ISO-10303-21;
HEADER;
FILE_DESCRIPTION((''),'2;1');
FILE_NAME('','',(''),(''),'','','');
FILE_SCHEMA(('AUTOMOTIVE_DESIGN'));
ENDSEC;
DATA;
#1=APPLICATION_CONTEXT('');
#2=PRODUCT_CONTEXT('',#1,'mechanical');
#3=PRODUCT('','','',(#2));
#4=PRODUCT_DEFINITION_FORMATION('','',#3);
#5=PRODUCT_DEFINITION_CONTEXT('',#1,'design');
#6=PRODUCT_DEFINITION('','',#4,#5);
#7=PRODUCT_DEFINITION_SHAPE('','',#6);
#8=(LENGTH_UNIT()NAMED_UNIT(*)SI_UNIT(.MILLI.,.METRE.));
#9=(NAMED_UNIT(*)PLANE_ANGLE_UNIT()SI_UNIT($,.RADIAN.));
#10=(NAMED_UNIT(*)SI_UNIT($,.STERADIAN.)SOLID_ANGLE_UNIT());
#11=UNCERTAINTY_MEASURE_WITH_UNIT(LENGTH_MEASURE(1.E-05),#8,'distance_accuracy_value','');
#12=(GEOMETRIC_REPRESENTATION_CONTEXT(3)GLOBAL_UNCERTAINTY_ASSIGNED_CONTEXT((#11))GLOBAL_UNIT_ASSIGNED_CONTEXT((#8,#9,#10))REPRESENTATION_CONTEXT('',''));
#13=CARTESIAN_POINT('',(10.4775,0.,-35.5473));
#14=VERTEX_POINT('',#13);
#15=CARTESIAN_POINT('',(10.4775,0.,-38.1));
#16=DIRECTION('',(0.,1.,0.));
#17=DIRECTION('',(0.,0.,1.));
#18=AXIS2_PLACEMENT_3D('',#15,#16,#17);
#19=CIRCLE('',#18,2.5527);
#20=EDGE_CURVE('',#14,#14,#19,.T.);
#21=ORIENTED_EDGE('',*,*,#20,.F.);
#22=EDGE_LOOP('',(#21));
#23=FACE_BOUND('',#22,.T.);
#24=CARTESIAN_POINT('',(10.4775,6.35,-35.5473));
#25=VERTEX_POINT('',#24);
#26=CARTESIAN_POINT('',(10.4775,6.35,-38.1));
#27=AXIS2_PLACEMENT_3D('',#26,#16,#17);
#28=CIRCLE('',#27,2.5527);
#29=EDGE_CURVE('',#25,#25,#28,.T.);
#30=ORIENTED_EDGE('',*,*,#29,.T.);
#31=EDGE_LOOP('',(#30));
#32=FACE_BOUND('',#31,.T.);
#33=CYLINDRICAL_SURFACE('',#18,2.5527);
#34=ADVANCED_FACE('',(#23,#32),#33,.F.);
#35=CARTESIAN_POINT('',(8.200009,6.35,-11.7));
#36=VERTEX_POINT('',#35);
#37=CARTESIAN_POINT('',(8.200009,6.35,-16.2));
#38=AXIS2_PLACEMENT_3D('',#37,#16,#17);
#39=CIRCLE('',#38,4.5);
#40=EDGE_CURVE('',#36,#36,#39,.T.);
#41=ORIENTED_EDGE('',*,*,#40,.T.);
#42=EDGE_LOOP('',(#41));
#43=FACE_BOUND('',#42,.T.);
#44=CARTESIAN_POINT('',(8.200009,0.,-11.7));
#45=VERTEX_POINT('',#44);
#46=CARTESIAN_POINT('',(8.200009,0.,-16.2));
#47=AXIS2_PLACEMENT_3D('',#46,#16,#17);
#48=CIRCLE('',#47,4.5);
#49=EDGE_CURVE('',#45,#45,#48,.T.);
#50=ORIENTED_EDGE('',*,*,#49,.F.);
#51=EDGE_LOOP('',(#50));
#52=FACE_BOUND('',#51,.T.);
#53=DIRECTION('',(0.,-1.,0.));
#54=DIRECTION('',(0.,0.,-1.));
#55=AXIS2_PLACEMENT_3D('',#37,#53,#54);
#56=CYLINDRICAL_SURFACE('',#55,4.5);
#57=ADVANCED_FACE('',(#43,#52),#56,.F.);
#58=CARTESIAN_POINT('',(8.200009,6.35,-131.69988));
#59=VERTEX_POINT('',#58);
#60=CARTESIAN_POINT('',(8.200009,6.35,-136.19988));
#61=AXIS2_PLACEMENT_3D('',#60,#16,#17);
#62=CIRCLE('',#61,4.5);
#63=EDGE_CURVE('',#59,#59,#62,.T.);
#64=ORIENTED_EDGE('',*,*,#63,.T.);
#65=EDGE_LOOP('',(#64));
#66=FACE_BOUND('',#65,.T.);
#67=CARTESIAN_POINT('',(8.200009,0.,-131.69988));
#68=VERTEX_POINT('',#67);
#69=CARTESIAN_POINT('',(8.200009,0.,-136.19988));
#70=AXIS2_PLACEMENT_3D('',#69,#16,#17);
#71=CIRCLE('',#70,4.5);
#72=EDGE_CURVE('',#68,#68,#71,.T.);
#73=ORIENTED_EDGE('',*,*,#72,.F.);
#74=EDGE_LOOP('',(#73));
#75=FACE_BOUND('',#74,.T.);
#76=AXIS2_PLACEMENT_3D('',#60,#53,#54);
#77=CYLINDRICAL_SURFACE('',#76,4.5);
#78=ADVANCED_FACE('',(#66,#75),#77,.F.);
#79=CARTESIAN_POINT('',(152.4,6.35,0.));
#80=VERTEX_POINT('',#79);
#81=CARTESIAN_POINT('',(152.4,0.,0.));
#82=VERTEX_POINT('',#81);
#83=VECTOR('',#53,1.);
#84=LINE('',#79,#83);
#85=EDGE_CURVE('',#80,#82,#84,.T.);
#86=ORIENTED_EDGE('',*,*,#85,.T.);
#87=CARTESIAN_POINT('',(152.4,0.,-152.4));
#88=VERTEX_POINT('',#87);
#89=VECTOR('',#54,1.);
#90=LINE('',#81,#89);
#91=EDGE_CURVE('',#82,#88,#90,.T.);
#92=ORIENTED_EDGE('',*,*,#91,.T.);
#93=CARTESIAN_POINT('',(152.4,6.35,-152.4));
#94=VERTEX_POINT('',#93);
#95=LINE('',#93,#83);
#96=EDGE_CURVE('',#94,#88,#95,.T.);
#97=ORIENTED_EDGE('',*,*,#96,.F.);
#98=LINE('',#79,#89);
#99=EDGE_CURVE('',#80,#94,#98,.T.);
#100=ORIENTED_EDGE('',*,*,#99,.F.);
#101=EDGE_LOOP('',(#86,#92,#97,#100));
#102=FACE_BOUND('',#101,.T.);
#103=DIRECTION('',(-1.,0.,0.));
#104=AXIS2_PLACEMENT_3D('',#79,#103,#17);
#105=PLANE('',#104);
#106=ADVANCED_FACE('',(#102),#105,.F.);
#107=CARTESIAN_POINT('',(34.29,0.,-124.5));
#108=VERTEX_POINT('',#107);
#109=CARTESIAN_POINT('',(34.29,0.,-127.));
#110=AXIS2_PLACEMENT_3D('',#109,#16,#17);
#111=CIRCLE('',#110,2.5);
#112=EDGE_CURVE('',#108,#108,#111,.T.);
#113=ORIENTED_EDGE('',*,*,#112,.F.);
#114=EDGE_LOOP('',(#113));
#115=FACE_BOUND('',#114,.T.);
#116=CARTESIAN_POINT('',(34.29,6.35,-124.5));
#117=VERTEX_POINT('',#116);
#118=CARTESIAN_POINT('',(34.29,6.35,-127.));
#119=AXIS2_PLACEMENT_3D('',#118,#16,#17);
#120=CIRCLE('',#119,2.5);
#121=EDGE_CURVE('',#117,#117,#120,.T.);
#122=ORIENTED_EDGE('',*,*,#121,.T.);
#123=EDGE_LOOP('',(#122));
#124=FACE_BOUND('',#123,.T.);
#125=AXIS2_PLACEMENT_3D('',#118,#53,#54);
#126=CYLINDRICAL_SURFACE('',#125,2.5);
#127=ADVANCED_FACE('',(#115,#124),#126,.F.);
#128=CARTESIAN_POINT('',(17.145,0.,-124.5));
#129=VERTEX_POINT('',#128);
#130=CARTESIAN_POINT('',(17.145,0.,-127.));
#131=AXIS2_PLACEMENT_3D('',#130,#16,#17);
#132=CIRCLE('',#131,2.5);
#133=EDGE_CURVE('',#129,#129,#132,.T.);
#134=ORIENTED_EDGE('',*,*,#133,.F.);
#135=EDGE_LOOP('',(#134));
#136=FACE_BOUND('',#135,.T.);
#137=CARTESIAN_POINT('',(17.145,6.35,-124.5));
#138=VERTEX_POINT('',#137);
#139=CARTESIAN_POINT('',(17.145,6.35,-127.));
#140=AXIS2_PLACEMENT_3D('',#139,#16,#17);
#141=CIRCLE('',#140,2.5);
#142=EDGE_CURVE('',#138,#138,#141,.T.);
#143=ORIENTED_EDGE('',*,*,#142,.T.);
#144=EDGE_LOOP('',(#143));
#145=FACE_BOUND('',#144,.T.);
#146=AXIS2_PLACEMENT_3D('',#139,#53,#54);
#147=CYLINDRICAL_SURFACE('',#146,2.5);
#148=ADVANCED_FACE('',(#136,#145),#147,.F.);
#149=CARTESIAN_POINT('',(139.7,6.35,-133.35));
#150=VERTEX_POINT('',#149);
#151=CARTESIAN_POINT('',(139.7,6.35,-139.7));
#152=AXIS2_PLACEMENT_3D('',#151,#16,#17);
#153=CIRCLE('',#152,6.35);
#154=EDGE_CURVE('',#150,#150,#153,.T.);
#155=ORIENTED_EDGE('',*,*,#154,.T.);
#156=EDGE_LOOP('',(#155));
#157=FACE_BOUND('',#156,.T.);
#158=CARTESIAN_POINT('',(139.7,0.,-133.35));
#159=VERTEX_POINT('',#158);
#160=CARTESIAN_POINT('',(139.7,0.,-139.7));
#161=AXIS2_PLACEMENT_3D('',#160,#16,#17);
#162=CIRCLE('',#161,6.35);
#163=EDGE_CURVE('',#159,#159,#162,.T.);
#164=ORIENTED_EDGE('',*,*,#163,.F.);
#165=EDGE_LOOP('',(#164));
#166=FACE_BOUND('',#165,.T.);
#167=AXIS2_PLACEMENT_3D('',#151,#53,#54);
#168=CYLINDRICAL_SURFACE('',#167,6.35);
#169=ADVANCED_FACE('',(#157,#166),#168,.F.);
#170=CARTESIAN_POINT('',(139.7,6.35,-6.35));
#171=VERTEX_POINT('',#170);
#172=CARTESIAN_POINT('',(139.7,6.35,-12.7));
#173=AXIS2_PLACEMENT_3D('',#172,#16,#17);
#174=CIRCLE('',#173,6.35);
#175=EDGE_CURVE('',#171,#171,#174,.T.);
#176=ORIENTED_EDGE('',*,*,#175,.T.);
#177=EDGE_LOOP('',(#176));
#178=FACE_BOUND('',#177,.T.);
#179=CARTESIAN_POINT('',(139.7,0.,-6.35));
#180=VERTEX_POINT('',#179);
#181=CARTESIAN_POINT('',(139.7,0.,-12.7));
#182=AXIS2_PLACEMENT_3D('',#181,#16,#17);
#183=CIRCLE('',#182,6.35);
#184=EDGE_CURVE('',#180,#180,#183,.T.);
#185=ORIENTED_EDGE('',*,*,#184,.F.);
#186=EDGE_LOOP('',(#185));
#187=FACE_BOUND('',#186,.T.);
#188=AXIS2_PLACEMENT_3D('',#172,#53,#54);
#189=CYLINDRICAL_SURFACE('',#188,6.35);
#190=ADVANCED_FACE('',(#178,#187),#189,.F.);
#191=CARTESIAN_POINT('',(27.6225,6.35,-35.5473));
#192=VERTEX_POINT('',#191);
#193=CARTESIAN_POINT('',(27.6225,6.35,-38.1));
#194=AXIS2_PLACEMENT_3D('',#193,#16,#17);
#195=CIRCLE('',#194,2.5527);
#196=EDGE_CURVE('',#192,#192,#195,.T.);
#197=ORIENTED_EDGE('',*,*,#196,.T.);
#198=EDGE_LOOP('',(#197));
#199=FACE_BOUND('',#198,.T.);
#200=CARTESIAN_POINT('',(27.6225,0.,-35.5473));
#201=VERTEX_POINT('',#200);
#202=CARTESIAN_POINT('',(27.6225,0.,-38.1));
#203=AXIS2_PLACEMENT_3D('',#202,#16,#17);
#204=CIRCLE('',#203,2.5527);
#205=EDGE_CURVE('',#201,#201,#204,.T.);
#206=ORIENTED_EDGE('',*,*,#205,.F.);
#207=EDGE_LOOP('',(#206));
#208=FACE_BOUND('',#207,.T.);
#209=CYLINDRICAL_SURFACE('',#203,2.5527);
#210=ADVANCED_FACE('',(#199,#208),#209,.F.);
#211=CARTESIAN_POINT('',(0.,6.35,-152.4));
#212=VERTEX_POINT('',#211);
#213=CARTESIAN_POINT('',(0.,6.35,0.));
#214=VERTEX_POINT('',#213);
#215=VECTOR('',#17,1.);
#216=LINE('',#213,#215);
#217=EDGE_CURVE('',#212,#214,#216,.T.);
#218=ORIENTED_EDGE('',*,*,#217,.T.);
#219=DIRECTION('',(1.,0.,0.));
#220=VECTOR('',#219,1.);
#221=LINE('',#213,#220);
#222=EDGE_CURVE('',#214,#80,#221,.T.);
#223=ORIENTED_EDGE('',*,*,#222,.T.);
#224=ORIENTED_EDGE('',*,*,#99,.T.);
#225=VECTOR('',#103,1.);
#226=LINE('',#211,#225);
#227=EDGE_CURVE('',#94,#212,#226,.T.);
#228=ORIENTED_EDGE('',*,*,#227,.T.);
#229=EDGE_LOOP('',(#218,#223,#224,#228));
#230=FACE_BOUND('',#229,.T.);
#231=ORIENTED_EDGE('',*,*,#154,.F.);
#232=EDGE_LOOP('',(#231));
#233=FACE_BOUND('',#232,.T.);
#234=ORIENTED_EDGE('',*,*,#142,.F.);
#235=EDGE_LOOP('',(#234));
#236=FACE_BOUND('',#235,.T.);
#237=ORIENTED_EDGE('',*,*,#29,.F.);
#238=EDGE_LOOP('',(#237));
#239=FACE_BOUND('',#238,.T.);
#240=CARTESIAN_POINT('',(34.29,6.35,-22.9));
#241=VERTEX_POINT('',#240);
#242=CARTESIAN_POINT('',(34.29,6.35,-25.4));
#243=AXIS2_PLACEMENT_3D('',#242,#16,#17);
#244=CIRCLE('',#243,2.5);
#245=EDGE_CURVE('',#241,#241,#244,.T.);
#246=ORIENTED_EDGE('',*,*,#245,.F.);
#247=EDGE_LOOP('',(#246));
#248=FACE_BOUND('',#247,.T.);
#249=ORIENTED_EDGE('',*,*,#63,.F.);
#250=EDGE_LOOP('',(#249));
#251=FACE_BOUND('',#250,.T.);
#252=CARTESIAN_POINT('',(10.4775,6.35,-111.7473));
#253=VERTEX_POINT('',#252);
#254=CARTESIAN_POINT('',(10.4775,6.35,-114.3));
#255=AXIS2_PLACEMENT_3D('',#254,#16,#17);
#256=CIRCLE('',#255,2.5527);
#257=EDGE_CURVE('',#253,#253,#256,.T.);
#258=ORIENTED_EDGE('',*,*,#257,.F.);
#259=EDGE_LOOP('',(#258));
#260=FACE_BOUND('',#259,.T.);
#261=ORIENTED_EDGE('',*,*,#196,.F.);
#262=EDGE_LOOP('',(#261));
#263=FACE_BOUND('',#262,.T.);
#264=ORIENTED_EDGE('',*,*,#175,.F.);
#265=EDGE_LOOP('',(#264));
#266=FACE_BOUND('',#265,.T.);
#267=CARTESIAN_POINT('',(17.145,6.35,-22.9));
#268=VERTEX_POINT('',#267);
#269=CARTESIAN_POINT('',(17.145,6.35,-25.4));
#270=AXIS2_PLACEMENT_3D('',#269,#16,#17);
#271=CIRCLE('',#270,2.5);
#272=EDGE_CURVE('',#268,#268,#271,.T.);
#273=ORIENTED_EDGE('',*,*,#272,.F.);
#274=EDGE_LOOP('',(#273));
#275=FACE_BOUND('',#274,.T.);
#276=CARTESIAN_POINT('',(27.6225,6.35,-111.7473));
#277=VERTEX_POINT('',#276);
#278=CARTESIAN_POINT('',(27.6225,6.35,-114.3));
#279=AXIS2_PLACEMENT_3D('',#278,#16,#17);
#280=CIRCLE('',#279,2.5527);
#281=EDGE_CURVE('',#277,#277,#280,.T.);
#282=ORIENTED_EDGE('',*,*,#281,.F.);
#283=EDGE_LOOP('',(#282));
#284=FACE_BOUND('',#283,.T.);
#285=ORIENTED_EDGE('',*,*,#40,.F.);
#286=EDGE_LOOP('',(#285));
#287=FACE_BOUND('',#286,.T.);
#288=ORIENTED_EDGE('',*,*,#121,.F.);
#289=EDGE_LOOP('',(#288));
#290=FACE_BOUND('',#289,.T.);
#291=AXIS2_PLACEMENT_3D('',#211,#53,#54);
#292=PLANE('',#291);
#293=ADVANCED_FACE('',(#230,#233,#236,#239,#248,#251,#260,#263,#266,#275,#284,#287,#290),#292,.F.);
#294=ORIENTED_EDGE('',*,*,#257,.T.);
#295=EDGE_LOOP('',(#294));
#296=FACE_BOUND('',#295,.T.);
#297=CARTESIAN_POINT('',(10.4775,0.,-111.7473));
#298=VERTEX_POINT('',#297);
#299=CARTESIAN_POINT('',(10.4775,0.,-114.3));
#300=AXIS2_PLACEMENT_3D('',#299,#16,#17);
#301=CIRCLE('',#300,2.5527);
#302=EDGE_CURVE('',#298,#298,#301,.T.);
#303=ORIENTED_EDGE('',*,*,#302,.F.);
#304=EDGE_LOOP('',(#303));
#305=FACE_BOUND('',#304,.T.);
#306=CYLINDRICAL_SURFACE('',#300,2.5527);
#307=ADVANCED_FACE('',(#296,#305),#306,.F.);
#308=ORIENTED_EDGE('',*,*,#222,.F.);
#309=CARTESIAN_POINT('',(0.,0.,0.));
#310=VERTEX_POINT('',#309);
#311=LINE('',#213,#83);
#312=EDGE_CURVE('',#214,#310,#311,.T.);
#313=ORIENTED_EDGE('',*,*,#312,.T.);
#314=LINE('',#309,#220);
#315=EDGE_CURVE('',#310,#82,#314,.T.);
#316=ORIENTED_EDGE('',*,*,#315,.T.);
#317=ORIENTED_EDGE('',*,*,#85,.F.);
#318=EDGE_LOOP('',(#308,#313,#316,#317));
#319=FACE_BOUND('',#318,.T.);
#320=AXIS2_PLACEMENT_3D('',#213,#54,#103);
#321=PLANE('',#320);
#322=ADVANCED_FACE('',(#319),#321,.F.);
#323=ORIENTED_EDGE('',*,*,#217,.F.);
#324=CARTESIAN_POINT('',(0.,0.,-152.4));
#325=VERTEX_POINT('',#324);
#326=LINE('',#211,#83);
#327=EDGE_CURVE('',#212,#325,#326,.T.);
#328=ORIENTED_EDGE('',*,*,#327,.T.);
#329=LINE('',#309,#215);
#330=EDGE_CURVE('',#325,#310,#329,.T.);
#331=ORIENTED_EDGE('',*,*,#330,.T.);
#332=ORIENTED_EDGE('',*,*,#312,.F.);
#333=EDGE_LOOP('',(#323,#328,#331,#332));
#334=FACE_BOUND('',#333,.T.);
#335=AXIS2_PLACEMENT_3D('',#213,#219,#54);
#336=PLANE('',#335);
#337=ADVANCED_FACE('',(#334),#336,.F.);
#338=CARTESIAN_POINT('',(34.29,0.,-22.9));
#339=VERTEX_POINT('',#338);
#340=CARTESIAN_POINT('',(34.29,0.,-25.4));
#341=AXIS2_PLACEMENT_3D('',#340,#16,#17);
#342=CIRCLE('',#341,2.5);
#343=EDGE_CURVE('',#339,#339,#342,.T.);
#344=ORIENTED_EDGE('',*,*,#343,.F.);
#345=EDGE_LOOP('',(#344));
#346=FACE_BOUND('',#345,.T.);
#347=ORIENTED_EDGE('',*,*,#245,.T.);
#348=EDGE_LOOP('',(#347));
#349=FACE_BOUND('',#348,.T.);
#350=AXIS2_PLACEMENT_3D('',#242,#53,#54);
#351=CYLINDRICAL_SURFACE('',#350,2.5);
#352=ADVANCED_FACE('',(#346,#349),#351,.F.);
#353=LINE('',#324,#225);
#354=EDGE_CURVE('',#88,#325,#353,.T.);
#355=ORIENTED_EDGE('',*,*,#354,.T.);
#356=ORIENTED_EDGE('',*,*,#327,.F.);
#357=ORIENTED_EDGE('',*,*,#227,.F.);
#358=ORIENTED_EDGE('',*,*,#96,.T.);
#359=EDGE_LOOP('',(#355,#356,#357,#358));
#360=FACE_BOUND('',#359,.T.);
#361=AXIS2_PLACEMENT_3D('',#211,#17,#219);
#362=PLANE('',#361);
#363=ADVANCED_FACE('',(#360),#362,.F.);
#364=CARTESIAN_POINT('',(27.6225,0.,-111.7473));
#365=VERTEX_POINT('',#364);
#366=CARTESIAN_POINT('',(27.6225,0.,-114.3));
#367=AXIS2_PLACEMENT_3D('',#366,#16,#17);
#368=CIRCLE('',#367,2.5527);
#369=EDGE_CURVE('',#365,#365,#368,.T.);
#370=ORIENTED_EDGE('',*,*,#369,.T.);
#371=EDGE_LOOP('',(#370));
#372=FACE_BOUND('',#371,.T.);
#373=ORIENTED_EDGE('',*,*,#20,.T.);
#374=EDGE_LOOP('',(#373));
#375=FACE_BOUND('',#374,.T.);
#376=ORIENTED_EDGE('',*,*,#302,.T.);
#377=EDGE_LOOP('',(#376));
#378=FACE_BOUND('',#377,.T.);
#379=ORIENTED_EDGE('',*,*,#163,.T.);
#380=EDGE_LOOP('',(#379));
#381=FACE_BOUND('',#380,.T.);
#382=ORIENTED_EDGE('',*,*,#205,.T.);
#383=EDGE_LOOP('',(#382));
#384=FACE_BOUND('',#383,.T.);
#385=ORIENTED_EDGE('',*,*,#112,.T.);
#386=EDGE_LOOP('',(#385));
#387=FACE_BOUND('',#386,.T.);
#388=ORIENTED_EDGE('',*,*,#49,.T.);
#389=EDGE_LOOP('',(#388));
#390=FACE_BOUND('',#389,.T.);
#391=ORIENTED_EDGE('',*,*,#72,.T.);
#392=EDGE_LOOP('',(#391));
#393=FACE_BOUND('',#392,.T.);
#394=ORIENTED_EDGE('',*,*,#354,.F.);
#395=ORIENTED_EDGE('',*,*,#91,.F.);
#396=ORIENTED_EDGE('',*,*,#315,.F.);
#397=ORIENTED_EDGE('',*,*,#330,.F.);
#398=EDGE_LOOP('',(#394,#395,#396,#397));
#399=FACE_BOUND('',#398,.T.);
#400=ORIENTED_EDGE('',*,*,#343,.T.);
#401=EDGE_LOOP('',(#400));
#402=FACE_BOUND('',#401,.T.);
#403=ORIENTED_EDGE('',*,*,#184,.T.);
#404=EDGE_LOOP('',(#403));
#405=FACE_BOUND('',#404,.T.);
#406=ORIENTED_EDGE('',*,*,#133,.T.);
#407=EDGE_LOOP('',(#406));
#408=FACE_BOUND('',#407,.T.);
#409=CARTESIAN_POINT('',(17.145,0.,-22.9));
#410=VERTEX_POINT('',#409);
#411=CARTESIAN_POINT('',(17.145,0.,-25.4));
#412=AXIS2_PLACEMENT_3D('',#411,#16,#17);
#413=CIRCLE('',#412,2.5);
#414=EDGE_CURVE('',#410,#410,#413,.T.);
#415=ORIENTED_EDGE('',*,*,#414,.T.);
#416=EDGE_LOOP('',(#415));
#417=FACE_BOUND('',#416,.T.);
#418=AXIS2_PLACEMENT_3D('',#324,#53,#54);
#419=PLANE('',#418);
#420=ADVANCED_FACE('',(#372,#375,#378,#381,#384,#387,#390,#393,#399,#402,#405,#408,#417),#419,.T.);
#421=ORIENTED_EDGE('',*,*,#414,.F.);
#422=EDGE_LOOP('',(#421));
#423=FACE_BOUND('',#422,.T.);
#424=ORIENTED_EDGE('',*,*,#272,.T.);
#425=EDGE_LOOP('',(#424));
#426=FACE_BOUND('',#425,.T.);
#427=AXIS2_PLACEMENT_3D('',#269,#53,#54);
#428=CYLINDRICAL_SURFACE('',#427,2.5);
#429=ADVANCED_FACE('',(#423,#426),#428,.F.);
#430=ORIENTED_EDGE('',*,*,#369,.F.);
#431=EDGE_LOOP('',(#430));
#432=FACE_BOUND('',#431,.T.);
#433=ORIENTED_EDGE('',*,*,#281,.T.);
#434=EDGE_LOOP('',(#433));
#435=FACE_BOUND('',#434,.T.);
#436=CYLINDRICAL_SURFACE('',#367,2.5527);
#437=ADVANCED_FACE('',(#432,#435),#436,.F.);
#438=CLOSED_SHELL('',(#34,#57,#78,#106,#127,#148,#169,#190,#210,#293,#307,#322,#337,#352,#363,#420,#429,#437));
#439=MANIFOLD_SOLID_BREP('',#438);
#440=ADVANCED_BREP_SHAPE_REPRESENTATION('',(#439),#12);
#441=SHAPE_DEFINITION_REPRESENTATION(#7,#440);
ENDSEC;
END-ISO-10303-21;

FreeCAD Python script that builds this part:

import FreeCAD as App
import Part
import Sketcher
from FreeCAD import Vector
Q = App.Units.Quantity


def add_polygon(sketch, points):
    """Adds a closed chain of lines whose ends are joined by coincident constraints."""
    first, n = sketch.GeometryCount, len(points)
    for a, b in zip(points, points[1:] + points[:1]):
        sketch.addGeometry(Part.LineSegment(App.Vector(*a, 0), App.Vector(*b, 0)), False)
    for i in range(n):
        sketch.addConstraint(Sketcher.Constraint("Coincident", first + i, 2, first + (i + 1) % n, 1))

doc = App.newDocument("Part")
body = doc.addObject("PartDesign::Body", "Body")

# Sketch on XZ plane
sketch1 = body.newObject("Sketcher::SketchObject", "Sketch")
sketch1.AttachmentSupport = (doc.getObject("XZ_Plane"), [""])
sketch1.MapMode = "FlatFace"
add_polygon(sketch1, [(0, -152.4), (0, 0), (152.4, 0), (152.4, -152.4)])  # lines 0-3
sketch1.addGeometry(Part.Circle(Vector(8.2, -16.2, 0), Vector(0, 0, 1), 4.5), False)  # 4
sketch1.addGeometry(Part.Circle(Vector(17.1, -25.4, 0), Vector(0, 0, 1), 2.5), False)  # 5
sketch1.addGeometry(Part.Circle(Vector(34.3, -25.4, 0), Vector(0, 0, 1), 2.5), False)  # 6
sketch1.addGeometry(Part.Circle(Vector(139.7, -12.7, 0), Vector(0, 0, 1), 6.3), False)  # 7
sketch1.addGeometry(Part.Circle(Vector(17.1, -127, 0), Vector(0, 0, 1), 2.5), False)  # 8
sketch1.addGeometry(Part.Circle(Vector(34.3, -127, 0), Vector(0, 0, 1), 2.5), False)  # 9
sketch1.addGeometry(Part.Circle(Vector(8.2, -136.2, 0), Vector(0, 0, 1), 4.5), False)  # 10
sketch1.addGeometry(Part.Circle(Vector(139.7, -139.7, 0), Vector(0, 0, 1), 6.3), False)  # 11
sketch1.addConstraint(Sketcher.Constraint("Vertical", 0))
sketch1.addConstraint(Sketcher.Constraint("Horizontal", 1))
sketch1.addConstraint(Sketcher.Constraint("Vertical", 2))
sketch1.addConstraint(Sketcher.Constraint("Horizontal", 3))
sketch1.addConstraint(Sketcher.Constraint("Coincident", 0, 2, -1, 1))
sketch1.addConstraint(Sketcher.Constraint("Equal", 5, 6))
sketch1.addConstraint(Sketcher.Constraint("Equal", 6, 8))
sketch1.addConstraint(Sketcher.Constraint("Equal", 8, 9))
sketch1.addConstraint(Sketcher.Constraint("Equal", 4, 10))
sketch1.addConstraint(Sketcher.Constraint("Equal", 7, 11))
sketch1.addConstraint(Sketcher.Constraint("Horizontal", 5, 3, 6, 3))
sketch1.addConstraint(Sketcher.Constraint("Horizontal", 8, 3, 9, 3))
sketch1.addConstraint(Sketcher.Constraint("Vertical", 5, 3, 8, 3))
sketch1.addConstraint(Sketcher.Constraint("Vertical", 6, 3, 9, 3))
sketch1.addConstraint(Sketcher.Constraint("Vertical", 4, 3, 10, 3))
sketch1.addConstraint(Sketcher.Constraint("Vertical", 7, 3, 11, 3))
sketch1.addConstraint(Sketcher.Constraint("Equal", 3, 0))
sketch1.addConstraint(Sketcher.Constraint("Diameter", 7, Q("0.5 in")))
sketch1.addConstraint(Sketcher.Constraint("DistanceX", 1, 1, 1, 2, Q("6 in")))
sketch1.addConstraint(Sketcher.Constraint("DistanceY", 5, 3, -1, 1, Q("1 in")))
sketch1.addConstraint(Sketcher.Constraint("DistanceY", 8, 3, -1, 1, Q("5 in")))
sketch1.addConstraint(Sketcher.Constraint("DistanceY", 11, 3, 7, 3, Q("5 in")))
sketch1.addConstraint(Sketcher.Constraint("DistanceX", -1, 1, 7, 3, Q("5.5 in")))
sketch1.addConstraint(Sketcher.Constraint("DistanceY", 7, 3, -1, 1, Q("0.5 in")))
sketch1.addConstraint(Sketcher.Constraint("Diameter", 4, 9.0))
sketch1.addConstraint(Sketcher.Constraint("Diameter", 5, 5.0))
sketch1.addConstraint(Sketcher.Constraint("DistanceX", -1, 1, 6, 3, Q("1.35 in")))
sketch1.addConstraint(Sketcher.Constraint("DistanceX", -1, 1, 5, 3, Q("0.675 in")))
sketch1.addConstraint(Sketcher.Constraint("DistanceY", 10, 3, -1, 1, Q("5.3622 in")))
sketch1.addConstraint(Sketcher.Constraint("DistanceY", 4, 3, -1, 1, 16.2))
sketch1.addConstraint(Sketcher.Constraint("DistanceX", -1, 1, 4, 3, 8.200009))
pad1 = body.newObject("PartDesign::Pad", "Pad")
pad1.Profile = sketch1
pad1.Length = Q("0.25 in")
pad1.Reversed = True

# Sketch on XZ plane
sketch2 = body.newObject("Sketcher::SketchObject", "Sketch001")
sketch2.AttachmentSupport = (doc.getObject("XZ_Plane"), [""])
sketch2.MapMode = "FlatFace"
sketch2.AttachmentOffset = App.Placement(Vector(0, 0, -0.25 * 25.4), App.Rotation())
sketch2.addGeometry(Part.Circle(Vector(10.5, -114.3, 0), Vector(0, 0, 1), 2.6), False)
sketch2.addGeometry(Part.Circle(Vector(27.6, -114.3, 0), Vector(0, 0, 1), 2.6), False)
sketch2.addGeometry(Part.Circle(Vector(10.5, -38.1, 0), Vector(0, 0, 1), 2.6), False)
sketch2.addGeometry(Part.Circle(Vector(27.6, -38.1, 0), Vector(0, 0, 1), 2.6), False)
sketch2.addConstraint(Sketcher.Constraint("Equal", 0, 1))
sketch2.addConstraint(Sketcher.Constraint("Equal", 1, 2))
sketch2.addConstraint(Sketcher.Constraint("Equal", 2, 3))
sketch2.addConstraint(Sketcher.Constraint("Horizontal", 0, 3, 1, 3))
sketch2.addConstraint(Sketcher.Constraint("Horizontal", 2, 3, 3, 3))
sketch2.addConstraint(Sketcher.Constraint("Vertical", 0, 3, 2, 3))
sketch2.addConstraint(Sketcher.Constraint("Vertical", 1, 3, 3, 3))
sketch2.addConstraint(Sketcher.Constraint("Diameter", 0, Q("0.201 in")))
sketch2.addConstraint(Sketcher.Constraint("DistanceY", 0, 3, 2, 3, Q("3 in")))
sketch2.addConstraint(Sketcher.Constraint("DistanceY", 0, 3, -1, 1, Q("4.5 in")))
sketch2.addConstraint(Sketcher.Constraint("DistanceX", 0, 3, 1, 3, Q("0.675 in")))
sketch2.addConstraint(Sketcher.Constraint("DistanceX", -1, 1, 0, 3, Q("0.4125 in")))
pocket1 = body.newObject("PartDesign::Pocket", "Pocket")
pocket1.Profile = sketch2
pocket1.Length = Q("0.25 in")
pocket1.Reversed = True

doc.recompute()
